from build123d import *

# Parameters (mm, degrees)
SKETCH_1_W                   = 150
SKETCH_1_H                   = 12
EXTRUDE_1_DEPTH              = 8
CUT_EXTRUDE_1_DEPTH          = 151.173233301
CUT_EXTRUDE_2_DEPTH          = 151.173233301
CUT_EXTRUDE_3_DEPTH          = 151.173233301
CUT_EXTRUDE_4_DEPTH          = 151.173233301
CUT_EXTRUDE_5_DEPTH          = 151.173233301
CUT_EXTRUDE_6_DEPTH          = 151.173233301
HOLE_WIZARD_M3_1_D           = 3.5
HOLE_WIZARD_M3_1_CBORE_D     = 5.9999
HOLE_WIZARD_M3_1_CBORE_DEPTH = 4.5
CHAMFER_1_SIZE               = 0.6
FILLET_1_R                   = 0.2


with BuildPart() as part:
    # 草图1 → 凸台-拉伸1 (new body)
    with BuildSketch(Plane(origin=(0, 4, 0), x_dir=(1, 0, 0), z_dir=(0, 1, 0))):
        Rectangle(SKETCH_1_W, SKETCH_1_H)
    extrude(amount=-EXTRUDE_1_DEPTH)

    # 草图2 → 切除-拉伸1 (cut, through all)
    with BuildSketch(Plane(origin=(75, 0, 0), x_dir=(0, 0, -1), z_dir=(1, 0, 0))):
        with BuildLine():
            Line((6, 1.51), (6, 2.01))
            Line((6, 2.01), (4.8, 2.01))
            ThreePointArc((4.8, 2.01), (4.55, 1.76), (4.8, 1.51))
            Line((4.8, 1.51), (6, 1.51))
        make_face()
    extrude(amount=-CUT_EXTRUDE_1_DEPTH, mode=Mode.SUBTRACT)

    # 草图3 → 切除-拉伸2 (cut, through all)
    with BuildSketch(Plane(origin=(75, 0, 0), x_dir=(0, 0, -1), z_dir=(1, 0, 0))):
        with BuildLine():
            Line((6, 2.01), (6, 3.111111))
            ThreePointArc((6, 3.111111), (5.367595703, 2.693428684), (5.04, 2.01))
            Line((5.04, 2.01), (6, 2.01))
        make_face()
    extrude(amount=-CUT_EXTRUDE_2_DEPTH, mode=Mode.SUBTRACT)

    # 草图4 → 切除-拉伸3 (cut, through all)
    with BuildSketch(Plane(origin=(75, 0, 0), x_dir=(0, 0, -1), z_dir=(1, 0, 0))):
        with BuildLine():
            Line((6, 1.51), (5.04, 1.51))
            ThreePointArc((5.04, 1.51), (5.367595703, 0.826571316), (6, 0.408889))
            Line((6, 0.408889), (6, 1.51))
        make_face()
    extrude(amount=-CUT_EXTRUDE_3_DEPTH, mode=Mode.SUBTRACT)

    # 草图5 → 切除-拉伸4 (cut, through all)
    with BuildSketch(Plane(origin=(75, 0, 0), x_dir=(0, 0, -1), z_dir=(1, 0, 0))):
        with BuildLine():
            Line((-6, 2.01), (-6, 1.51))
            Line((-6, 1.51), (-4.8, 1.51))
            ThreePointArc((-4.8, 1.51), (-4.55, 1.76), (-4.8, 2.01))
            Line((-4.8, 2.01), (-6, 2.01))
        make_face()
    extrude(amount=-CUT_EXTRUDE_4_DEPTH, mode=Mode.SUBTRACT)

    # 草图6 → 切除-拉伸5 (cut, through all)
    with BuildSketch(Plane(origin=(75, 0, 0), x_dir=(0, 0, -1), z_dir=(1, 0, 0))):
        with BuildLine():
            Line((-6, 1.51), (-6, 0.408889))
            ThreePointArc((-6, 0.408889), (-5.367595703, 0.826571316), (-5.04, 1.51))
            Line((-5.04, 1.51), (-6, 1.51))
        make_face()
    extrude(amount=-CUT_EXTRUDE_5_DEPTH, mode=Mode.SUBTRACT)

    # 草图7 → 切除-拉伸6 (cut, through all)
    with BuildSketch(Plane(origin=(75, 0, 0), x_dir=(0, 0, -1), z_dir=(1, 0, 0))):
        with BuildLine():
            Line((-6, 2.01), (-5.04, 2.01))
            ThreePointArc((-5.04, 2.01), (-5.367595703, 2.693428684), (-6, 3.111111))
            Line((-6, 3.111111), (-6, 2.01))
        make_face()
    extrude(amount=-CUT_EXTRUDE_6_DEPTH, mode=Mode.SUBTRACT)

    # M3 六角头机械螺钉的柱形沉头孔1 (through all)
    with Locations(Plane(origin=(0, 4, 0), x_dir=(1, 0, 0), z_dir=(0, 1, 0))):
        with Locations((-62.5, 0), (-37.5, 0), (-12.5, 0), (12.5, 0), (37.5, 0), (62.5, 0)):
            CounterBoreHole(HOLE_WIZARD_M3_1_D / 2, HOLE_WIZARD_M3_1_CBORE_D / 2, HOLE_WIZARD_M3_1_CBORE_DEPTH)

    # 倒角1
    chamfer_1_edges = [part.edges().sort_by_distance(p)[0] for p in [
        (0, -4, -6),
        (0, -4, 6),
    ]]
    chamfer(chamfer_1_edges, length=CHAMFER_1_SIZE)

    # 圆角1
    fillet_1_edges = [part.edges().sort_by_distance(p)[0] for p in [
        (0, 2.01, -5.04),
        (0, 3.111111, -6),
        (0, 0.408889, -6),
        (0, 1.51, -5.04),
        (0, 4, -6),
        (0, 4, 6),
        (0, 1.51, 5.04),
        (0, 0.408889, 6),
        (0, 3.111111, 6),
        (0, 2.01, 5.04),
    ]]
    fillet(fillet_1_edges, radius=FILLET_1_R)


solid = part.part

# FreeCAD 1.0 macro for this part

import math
import FreeCAD as App
import Part
import Sketcher
Q = App.Units.Quantity


def edges_at(feature, points):
    """Names of the edges that pass closest to the given points."""
    edges = feature.Shape.Edges
    near = lambda p: min(range(len(edges)), key=lambda i: edges[i].distToShape(Part.Vertex(*p))[0])
    return sorted({f"Edge{near(p) + 1}" for p in points})


def add_polygon(sketch, points):
    """Adds a closed chain of lines whose ends are joined by coincident constraints."""
    first, n = sketch.GeometryCount, len(points)
    for a, b in zip(points, points[1:] + points[:1]):
        sketch.addGeometry(Part.LineSegment(App.Vector(*a, 0), App.Vector(*b, 0)), False)
    for i in range(n):
        sketch.addConstraint(Sketcher.Constraint("Coincident", first + i, 2, first + (i + 1) % n, 1))

doc = App.newDocument("Part")
body = doc.addObject("PartDesign::Body", "Body")

sketch1 = doc.addObject("Sketcher::SketchObject", "Sketch")
body.addObject(sketch1)
sketch1.AttachmentSupport = (doc.XZ_Plane, [""])
sketch1.MapMode = "FlatFace"
sketch1.AttachmentOffset = App.Placement(App.Vector(0, 0, -4), App.Rotation())
add_polygon(sketch1, [(-75, -6), (-75, 6), (75, 6), (75, -6)])
sketch1.addConstraint(Sketcher.Constraint("Vertical", 0))
sketch1.addConstraint(Sketcher.Constraint("Horizontal", 1))
sketch1.addConstraint(Sketcher.Constraint("Vertical", 2))
sketch1.addConstraint(Sketcher.Constraint("Horizontal", 3))
sketch1.addConstraint(Sketcher.Constraint("Symmetric", 0, 2, 2, 2, -1, 1))
sketch1.addConstraint(Sketcher.Constraint("DistanceX", 1, 1, 1, 2, Q("150 mm")))
sketch1.addConstraint(Sketcher.Constraint("DistanceY", 0, 1, 0, 2, Q("12 mm")))
pad1 = doc.addObject("PartDesign::Pad", "Pad")
body.addObject(pad1)
pad1.Profile = sketch1
pad1.Length = 8

sketch2 = doc.addObject("Sketcher::SketchObject", "Sketch001")
body.addObject(sketch2)
sketch2.AttachmentSupport = (doc.YZ_Plane, [""])
sketch2.MapMode = "FlatFace"
sketch2.AttachmentOffset = App.Placement(App.Vector(0, 0, 75), App.Rotation())
sketch2.addGeometry(Part.LineSegment(App.Vector(1.51, -6, 0), App.Vector(2.01, -6, 0)), False)
sketch2.addGeometry(Part.LineSegment(App.Vector(2.01, -6, 0), App.Vector(2.01, -4.8, 0)), False)
sketch2.addGeometry(Part.ArcOfCircle(Part.Circle(App.Vector(1.76, -4.8, 0), App.Vector(0, 0, 1), 0.25), math.radians(0), math.radians(180)), False)
sketch2.addGeometry(Part.LineSegment(App.Vector(1.51, -4.8, 0), App.Vector(1.51, -6, 0)), False)
sketch2.addConstraint(Sketcher.Constraint("Coincident", 0, 2, 1, 1))
sketch2.addConstraint(Sketcher.Constraint("Tangent", 1, 2, 2, 1))
sketch2.addConstraint(Sketcher.Constraint("Tangent", 2, 2, 3, 1))
sketch2.addConstraint(Sketcher.Constraint("Coincident", 3, 2, 0, 1))
sketch2.addConstraint(Sketcher.Constraint("Horizontal", 0))
sketch2.addConstraint(Sketcher.Constraint("Vertical", 1))
sketch2.addConstraint(Sketcher.Constraint("Vertical", 3))
sketch2.addConstraint(Sketcher.Constraint("Radius", 2, Q("0.25 mm")))
sketch2.addConstraint(Sketcher.Constraint("DistanceY", 1, 1, 1, 2, Q("1.2 mm")))
sketch2.addConstraint(Sketcher.Constraint("DistanceY", 0, 2, -1, 1, Q("6 mm")))
sketch2.addConstraint(Sketcher.Constraint("DistanceX", -1, 1, 2, 3, Q("1.76 mm")))
pocket1 = doc.addObject("PartDesign::Pocket", "Pocket")
body.addObject(pocket1)
pocket1.Profile = sketch2
pocket1.Type = "ThroughAll"

sketch3 = doc.addObject("Sketcher::SketchObject", "Sketch002")
body.addObject(sketch3)
sketch3.AttachmentSupport = (doc.YZ_Plane, [""])
sketch3.MapMode = "FlatFace"
sketch3.AttachmentOffset = App.Placement(App.Vector(0, 0, 75), App.Rotation())
sketch3.addGeometry(Part.LineSegment(App.Vector(2, -6, 0), App.Vector(3.1, -6, 0)), False)
sketch3.addGeometry(Part.ArcOfCircle(Part.Circle(App.Vector(1.8, -6.4, 0), App.Vector(0, 0, 1), 1.4), math.radians(18), math.radians(80)), False)
sketch3.addGeometry(Part.LineSegment(App.Vector(2, -5, 0), App.Vector(2, -6, 0)), False)
sketch3.addConstraint(Sketcher.Constraint("Coincident", 0, 2, 1, 1))
sketch3.addConstraint(Sketcher.Constraint("Coincident", 1, 2, 2, 1))
sketch3.addConstraint(Sketcher.Constraint("Coincident", 2, 2, 0, 1))
sketch3.addConstraint(Sketcher.Constraint("Horizontal", 0))
sketch3.addConstraint(Sketcher.Constraint("Vertical", 2))
sketch3.addConstraint(Sketcher.Constraint("DistanceY", 0, 2, -1, 1, Q("6 mm")))
sketch3.addConstraint(Sketcher.Constraint("DistanceY", 2, 2, 2, 1, Q("0.96 mm")))
sketch3.addConstraint(Sketcher.Constraint("DistanceX", -1, 1, 1, 3, Q("1.76 mm")))
sketch3.addConstraint(Sketcher.Constraint("DistanceX", -1, 1, 1, 2, Q("2.01 mm")))
sketch3.addConstraint(Sketcher.Constraint("Radius", 1, Q("1.420404 mm")))
pocket2 = doc.addObject("PartDesign::Pocket", "Pocket001")
body.addObject(pocket2)
pocket2.Profile = sketch3
pocket2.Type = "ThroughAll"

sketch4 = doc.addObject("Sketcher::SketchObject", "Sketch003")
body.addObject(sketch4)
sketch4.AttachmentSupport = (doc.YZ_Plane, [""])
sketch4.MapMode = "FlatFace"
sketch4.AttachmentOffset = App.Placement(App.Vector(0, 0, 75), App.Rotation())
sketch4.addGeometry(Part.LineSegment(App.Vector(1.5, -6, 0), App.Vector(1.5, -5, 0)), False)
sketch4.addGeometry(Part.ArcOfCircle(Part.Circle(App.Vector(1.8, -6.4, 0), App.Vector(0, 0, 1), 1.4), math.radians(100), math.radians(162)), False)
sketch4.addGeometry(Part.LineSegment(App.Vector(0.4, -6, 0), App.Vector(1.5, -6, 0)), False)
sketch4.addConstraint(Sketcher.Constraint("Coincident", 0, 2, 1, 1))
sketch4.addConstraint(Sketcher.Constraint("Coincident", 1, 2, 2, 1))
sketch4.addConstraint(Sketcher.Constraint("Coincident", 2, 2, 0, 1))
sketch4.addConstraint(Sketcher.Constraint("Vertical", 0))
sketch4.addConstraint(Sketcher.Constraint("Horizontal", 2))
sketch4.addConstraint(Sketcher.Constraint("DistanceY", 1, 2, -1, 1, Q("6 mm")))
sketch4.addConstraint(Sketcher.Constraint("DistanceY", 0, 1, 0, 2, Q("0.96 mm")))
sketch4.addConstraint(Sketcher.Constraint("DistanceX", -1, 1, 1, 3, Q("1.76 mm")))
sketch4.addConstraint(Sketcher.Constraint("DistanceX", -1, 1, 0, 2, Q("1.51 mm")))
sketch4.addConstraint(Sketcher.Constraint("Radius", 1, Q("1.420404 mm")))
pocket3 = doc.addObject("PartDesign::Pocket", "Pocket002")
body.addObject(pocket3)
pocket3.Profile = sketch4
pocket3.Type = "ThroughAll"

sketch5 = doc.addObject("Sketcher::SketchObject", "Sketch004")
body.addObject(sketch5)
sketch5.AttachmentSupport = (doc.YZ_Plane, [""])
sketch5.MapMode = "FlatFace"
sketch5.AttachmentOffset = App.Placement(App.Vector(0, 0, 75), App.Rotation())
sketch5.addGeometry(Part.LineSegment(App.Vector(2.01, 6, 0), App.Vector(1.51, 6, 0)), False)
sketch5.addGeometry(Part.LineSegment(App.Vector(1.51, 6, 0), App.Vector(1.51, 4.8, 0)), False)
sketch5.addGeometry(Part.ArcOfCircle(Part.Circle(App.Vector(1.76, 4.8, 0), App.Vector(0, 0, 1), 0.25), math.radians(180), math.radians(360)), False)
sketch5.addGeometry(Part.LineSegment(App.Vector(2.01, 4.8, 0), App.Vector(2.01, 6, 0)), False)
sketch5.addConstraint(Sketcher.Constraint("Coincident", 0, 2, 1, 1))
sketch5.addConstraint(Sketcher.Constraint("Tangent", 1, 2, 2, 1))
sketch5.addConstraint(Sketcher.Constraint("Tangent", 2, 2, 3, 1))
sketch5.addConstraint(Sketcher.Constraint("Coincident", 3, 2, 0, 1))
sketch5.addConstraint(Sketcher.Constraint("Horizontal", 0))
sketch5.addConstraint(Sketcher.Constraint("Vertical", 1))
sketch5.addConstraint(Sketcher.Constraint("Vertical", 3))
sketch5.addConstraint(Sketcher.Constraint("Radius", 2, Q("0.25 mm")))
sketch5.addConstraint(Sketcher.Constraint("DistanceY", 1, 2, 1, 1, Q("1.2 mm")))
sketch5.addConstraint(Sketcher.Constraint("DistanceY", -1, 1, 0, 2, Q("6 mm")))
sketch5.addConstraint(Sketcher.Constraint("DistanceX", -1, 1, 2, 3, Q("1.76 mm")))
pocket4 = doc.addObject("PartDesign::Pocket", "Pocket003")
body.addObject(pocket4)
pocket4.Profile = sketch5
pocket4.Type = "ThroughAll"

sketch6 = doc.addObject("Sketcher::SketchObject", "Sketch005")
body.addObject(sketch6)
sketch6.AttachmentSupport = (doc.YZ_Plane, [""])
sketch6.MapMode = "FlatFace"
sketch6.AttachmentOffset = App.Placement(App.Vector(0, 0, 75), App.Rotation())
sketch6.addGeometry(Part.LineSegment(App.Vector(1.5, 6, 0), App.Vector(0.4, 6, 0)), False)
sketch6.addGeometry(Part.ArcOfCircle(Part.Circle(App.Vector(1.8, 6.4, 0), App.Vector(0, 0, 1), 1.4), math.radians(-162), math.radians(-100)), False)
sketch6.addGeometry(Part.LineSegment(App.Vector(1.5, 5, 0), App.Vector(1.5, 6, 0)), False)
sketch6.addConstraint(Sketcher.Constraint("Coincident", 0, 2, 1, 1))
sketch6.addConstraint(Sketcher.Constraint("Coincident", 1, 2, 2, 1))
sketch6.addConstraint(Sketcher.Constraint("Coincident", 2, 2, 0, 1))
sketch6.addConstraint(Sketcher.Constraint("Horizontal", 0))
sketch6.addConstraint(Sketcher.Constraint("Vertical", 2))
sketch6.addConstraint(Sketcher.Constraint("DistanceY", -1, 1, 0, 2, Q("6 mm")))
sketch6.addConstraint(Sketcher.Constraint("DistanceY", 2, 1, 2, 2, Q("0.96 mm")))
sketch6.addConstraint(Sketcher.Constraint("DistanceX", -1, 1, 1, 3, Q("1.76 mm")))
sketch6.addConstraint(Sketcher.Constraint("DistanceX", -1, 1, 1, 2, Q("1.51 mm")))
sketch6.addConstraint(Sketcher.Constraint("Radius", 1, Q("1.420404 mm")))
pocket5 = doc.addObject("PartDesign::Pocket", "Pocket004")
body.addObject(pocket5)
pocket5.Profile = sketch6
pocket5.Type = "ThroughAll"

sketch7 = doc.addObject("Sketcher::SketchObject", "Sketch006")
body.addObject(sketch7)
sketch7.AttachmentSupport = (doc.YZ_Plane, [""])
sketch7.MapMode = "FlatFace"
sketch7.AttachmentOffset = App.Placement(App.Vector(0, 0, 75), App.Rotation())
sketch7.addGeometry(Part.LineSegment(App.Vector(2, 6, 0), App.Vector(2, 5, 0)), False)
sketch7.addGeometry(Part.ArcOfCircle(Part.Circle(App.Vector(1.8, 6.4, 0), App.Vector(0, 0, 1), 1.4), math.radians(-80), math.radians(-18)), False)
sketch7.addGeometry(Part.LineSegment(App.Vector(3.1, 6, 0), App.Vector(2, 6, 0)), False)
sketch7.addConstraint(Sketcher.Constraint("Coincident", 0, 2, 1, 1))
sketch7.addConstraint(Sketcher.Constraint("Coincident", 1, 2, 2, 1))
sketch7.addConstraint(Sketcher.Constraint("Coincident", 2, 2, 0, 1))
sketch7.addConstraint(Sketcher.Constraint("Vertical", 0))
sketch7.addConstraint(Sketcher.Constraint("Horizontal", 2))
sketch7.addConstraint(Sketcher.Constraint("DistanceY", -1, 1, 1, 2, Q("6 mm")))
sketch7.addConstraint(Sketcher.Constraint("DistanceY", 0, 2, 0, 1, Q("0.96 mm")))
sketch7.addConstraint(Sketcher.Constraint("DistanceX", -1, 1, 1, 3, Q("1.76 mm")))
sketch7.addConstraint(Sketcher.Constraint("DistanceX", -1, 1, 0, 2, Q("2.01 mm")))
sketch7.addConstraint(Sketcher.Constraint("Radius", 1, Q("1.420404 mm")))
pocket6 = doc.addObject("PartDesign::Pocket", "Pocket005")
body.addObject(pocket6)
pocket6.Profile = sketch7
pocket6.Type = "ThroughAll"

sketch8 = doc.addObject("Sketcher::SketchObject", "Sketch007")
body.addObject(sketch8)
sketch8.AttachmentSupport = (doc.XZ_Plane, [""])
sketch8.MapMode = "FlatFace"
sketch8.AttachmentOffset = App.Placement(App.Vector(0, 0, -4), App.Rotation())
sketch8.addGeometry(Part.Circle(App.Vector(-62.5, 0, 0), App.Vector(0, 0, 1), 1.8), False)
sketch8.addGeometry(Part.Circle(App.Vector(-37.5, 0, 0), App.Vector(0, 0, 1), 1.8), False)
sketch8.addGeometry(Part.Circle(App.Vector(-12.5, 0, 0), App.Vector(0, 0, 1), 1.8), False)
sketch8.addGeometry(Part.Circle(App.Vector(12.5, 0, 0), App.Vector(0, 0, 1), 1.8), False)
sketch8.addGeometry(Part.Circle(App.Vector(37.5, 0, 0), App.Vector(0, 0, 1), 1.8), False)
sketch8.addGeometry(Part.Circle(App.Vector(62.5, 0, 0), App.Vector(0, 0, 1), 1.8), False)
sketch8.addConstraint(Sketcher.Constraint("Equal", 0, 1))
sketch8.addConstraint(Sketcher.Constraint("Equal", 1, 2))
sketch8.addConstraint(Sketcher.Constraint("Equal", 2, 3))
sketch8.addConstraint(Sketcher.Constraint("Equal", 3, 4))
sketch8.addConstraint(Sketcher.Constraint("Equal", 4, 5))
sketch8.addConstraint(Sketcher.Constraint("Symmetric", 2, 3, 3, 3, -1, 1))
sketch8.addConstraint(Sketcher.Constraint("Symmetric", 1, 3, 4, 3, -1, 1))
sketch8.addConstraint(Sketcher.Constraint("Symmetric", 0, 3, 5, 3, -1, 1))
sketch8.addConstraint(Sketcher.Constraint("PointOnObject", 0, 3, -1))
sketch8.addConstraint(Sketcher.Constraint("PointOnObject", 1, 3, -1))
sketch8.addConstraint(Sketcher.Constraint("PointOnObject", 2, 3, -1))
sketch8.addConstraint(Sketcher.Constraint("Diameter", 0, Q("3.5 mm")))
sketch8.addConstraint(Sketcher.Constraint("DistanceX", 0, 3, 1, 3, Q("25 mm")))
sketch8.addConstraint(Sketcher.Constraint("DistanceX", 1, 3, 2, 3, Q("25 mm")))
sketch8.addConstraint(Sketcher.Constraint("DistanceX", 2, 3, 3, 3, Q("25 mm")))
doc.recompute()
hole = doc.addObject("PartDesign::Hole", "Hole")
body.addObject(hole)
hole.Profile = sketch8
hole.ThreadType = "None"
hole.Diameter = 3.5
hole.DepthType = "ThroughAll"
hole.HoleCutType = "Counterbore"
hole.HoleCutDiameter = 5.9999
hole.HoleCutDepth = 4.5
hole.Reversed = True
doc.recompute()

chamfer = doc.addObject("PartDesign::Chamfer", "Chamfer")
body.addObject(chamfer)
chamfer.Base = (hole, edges_at(hole, [(0, -4, -6), (0, -4, 6)]))
chamfer.Size = 0.6
doc.recompute()

fillet = doc.addObject("PartDesign::Fillet", "Fillet")
body.addObject(fillet)
fillet.Base = (chamfer, edges_at(chamfer, [
    (0, 2.01, -5.04),
    (0, 3.111, -6),
    (0, 0.409, -6),
    (0, 1.51, -5.04),
    (0, 4, -6),
    (0, 4, 6),
    (0, 1.51, 5.04),
    (0, 0.409, 6),
    (0, 3.111, 6),
    (0, 2.01, 5.04),
]))
fillet.Radius = 0.2

doc.recompute()
